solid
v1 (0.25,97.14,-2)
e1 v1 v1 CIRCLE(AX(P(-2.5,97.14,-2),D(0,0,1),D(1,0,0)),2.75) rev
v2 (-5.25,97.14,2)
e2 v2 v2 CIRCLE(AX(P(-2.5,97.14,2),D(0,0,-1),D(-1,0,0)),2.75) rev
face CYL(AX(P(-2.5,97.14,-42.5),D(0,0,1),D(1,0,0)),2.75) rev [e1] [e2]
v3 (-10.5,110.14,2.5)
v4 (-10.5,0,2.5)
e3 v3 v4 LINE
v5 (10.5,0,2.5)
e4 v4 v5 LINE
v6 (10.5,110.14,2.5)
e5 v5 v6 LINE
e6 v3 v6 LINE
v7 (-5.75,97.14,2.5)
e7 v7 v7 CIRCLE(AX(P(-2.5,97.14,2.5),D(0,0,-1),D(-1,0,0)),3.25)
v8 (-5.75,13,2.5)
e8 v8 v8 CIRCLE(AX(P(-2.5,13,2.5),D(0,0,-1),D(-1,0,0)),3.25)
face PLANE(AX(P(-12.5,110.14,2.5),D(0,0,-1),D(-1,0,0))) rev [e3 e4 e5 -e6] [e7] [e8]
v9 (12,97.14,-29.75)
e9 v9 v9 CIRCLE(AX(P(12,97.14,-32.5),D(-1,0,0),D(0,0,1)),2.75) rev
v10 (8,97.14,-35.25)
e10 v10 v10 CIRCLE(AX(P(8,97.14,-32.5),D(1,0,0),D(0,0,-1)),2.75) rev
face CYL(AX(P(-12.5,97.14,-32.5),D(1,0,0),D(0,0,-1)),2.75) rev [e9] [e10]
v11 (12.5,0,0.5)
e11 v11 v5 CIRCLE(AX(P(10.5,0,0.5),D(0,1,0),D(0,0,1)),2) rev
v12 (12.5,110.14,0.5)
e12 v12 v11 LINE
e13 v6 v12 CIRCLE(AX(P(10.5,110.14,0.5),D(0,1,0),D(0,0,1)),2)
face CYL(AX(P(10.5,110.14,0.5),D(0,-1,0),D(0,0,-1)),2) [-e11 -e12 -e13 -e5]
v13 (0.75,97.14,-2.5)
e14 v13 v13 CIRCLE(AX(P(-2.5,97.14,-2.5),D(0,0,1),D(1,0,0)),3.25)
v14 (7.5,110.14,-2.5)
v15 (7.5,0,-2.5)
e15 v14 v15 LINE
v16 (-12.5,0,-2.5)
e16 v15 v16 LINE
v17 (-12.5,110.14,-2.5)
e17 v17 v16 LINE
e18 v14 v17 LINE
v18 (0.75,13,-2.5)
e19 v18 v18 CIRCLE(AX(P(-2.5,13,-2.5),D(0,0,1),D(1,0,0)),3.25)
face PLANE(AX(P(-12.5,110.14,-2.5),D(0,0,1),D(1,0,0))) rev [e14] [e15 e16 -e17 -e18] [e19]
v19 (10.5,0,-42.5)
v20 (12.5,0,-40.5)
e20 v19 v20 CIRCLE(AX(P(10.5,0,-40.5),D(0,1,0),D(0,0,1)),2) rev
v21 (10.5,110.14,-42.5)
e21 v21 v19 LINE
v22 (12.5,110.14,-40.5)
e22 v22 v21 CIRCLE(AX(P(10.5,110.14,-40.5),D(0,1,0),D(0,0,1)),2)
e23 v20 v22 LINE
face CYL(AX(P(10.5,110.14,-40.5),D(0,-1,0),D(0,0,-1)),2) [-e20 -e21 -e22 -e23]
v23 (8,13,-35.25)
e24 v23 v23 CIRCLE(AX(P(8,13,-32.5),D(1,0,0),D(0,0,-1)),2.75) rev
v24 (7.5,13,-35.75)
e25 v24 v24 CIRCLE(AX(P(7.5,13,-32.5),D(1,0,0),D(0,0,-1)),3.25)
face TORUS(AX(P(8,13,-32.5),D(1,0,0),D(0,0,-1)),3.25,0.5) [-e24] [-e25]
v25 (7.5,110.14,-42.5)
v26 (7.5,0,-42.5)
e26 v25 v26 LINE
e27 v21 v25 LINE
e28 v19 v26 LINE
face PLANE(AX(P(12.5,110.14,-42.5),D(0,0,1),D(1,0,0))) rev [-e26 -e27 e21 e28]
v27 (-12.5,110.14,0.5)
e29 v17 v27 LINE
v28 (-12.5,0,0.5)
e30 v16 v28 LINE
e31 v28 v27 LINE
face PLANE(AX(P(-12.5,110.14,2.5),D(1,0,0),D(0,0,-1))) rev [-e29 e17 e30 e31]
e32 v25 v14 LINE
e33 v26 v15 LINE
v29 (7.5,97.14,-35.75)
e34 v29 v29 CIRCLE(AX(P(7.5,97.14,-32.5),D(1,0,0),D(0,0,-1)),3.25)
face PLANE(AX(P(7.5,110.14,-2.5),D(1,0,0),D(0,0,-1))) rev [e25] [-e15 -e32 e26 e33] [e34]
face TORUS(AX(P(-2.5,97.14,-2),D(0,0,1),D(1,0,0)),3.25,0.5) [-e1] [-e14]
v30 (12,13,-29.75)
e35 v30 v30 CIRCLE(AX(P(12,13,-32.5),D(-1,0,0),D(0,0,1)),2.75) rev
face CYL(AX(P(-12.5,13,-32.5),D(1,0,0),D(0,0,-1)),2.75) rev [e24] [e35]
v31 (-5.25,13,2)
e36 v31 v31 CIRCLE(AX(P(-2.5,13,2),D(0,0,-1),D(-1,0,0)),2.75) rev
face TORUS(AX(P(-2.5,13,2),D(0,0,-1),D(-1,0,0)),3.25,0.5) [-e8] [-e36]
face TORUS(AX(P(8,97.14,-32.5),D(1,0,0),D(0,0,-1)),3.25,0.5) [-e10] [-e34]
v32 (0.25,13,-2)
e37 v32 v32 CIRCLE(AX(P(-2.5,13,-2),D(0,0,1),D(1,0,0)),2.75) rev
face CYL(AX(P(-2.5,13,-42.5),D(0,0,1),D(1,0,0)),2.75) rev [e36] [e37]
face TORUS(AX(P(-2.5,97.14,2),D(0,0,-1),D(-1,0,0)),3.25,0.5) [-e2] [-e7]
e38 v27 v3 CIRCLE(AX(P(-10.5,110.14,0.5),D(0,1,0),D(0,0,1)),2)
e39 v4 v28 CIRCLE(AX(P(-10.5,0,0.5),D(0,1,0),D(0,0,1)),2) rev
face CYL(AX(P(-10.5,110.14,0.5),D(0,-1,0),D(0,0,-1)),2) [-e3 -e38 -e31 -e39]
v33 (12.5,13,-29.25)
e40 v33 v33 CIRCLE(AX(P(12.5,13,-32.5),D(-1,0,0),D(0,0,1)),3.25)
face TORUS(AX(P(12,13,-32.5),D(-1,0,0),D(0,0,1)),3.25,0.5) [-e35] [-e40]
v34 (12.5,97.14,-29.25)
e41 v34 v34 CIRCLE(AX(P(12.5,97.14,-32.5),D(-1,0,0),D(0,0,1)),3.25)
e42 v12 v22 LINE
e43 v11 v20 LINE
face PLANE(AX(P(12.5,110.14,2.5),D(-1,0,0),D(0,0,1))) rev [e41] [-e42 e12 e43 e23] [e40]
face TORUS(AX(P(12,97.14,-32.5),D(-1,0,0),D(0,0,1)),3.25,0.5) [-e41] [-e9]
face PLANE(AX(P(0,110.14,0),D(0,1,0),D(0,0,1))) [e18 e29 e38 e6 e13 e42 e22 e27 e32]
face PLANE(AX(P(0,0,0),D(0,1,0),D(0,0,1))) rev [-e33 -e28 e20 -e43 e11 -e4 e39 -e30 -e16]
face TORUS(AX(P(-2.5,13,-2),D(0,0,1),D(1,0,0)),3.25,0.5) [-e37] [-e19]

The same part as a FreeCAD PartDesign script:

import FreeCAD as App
import Part
import Sketcher

V = App.Vector


def edges_at(feature, points):
    """Names of the edges that pass closest to the given points."""
    edges = feature.Shape.Edges
    near = lambda p: min(range(len(edges)), key=lambda i: edges[i].distToShape(Part.Vertex(*p))[0])
    return sorted({f"Edge{near(p) + 1}" for p in points})

doc = App.newDocument("Part")
body = doc.addObject("PartDesign::Body", "Body")

# Sketch on XZ plane
sketch1 = body.newObject("Sketcher::SketchObject", "Sketch")
sketch1.AttachmentSupport = (doc.getObject("XZ_Plane"), [""])
sketch1.MapMode = "FlatFace"
sketch1.addGeometry([
    Part.LineSegment(V(-12, 2, 0), V(12, 2, 0)),  # 0
    Part.LineSegment(V(12, 2, 0), V(12, -42, 0)),  # 1
    Part.LineSegment(V(12, -42, 0), V(8, -42, 0)),  # 2
    Part.LineSegment(V(8, -42, 0), V(8, -2, 0)),  # 3
    Part.LineSegment(V(8, -2, 0), V(-12, -2, 0)),  # 4
    Part.LineSegment(V(-12, -2, 0), V(-12, 2, 0)),  # 5
], False)
sketch1.addConstraint([
    Sketcher.Constraint("Coincident", 0, 2, 1, 1),
    Sketcher.Constraint("Coincident", 1, 2, 2, 1),
    Sketcher.Constraint("Coincident", 2, 2, 3, 1),
    Sketcher.Constraint("Coincident", 3, 2, 4, 1),
    Sketcher.Constraint("Coincident", 4, 2, 5, 1),
    Sketcher.Constraint("Coincident", 5, 2, 0, 1),
    Sketcher.Constraint("Horizontal", 0),
    Sketcher.Constraint("Vertical", 1),
    Sketcher.Constraint("Horizontal", 2),
    Sketcher.Constraint("Vertical", 3),
    Sketcher.Constraint("Horizontal", 4),
    Sketcher.Constraint("Vertical", 5),
    Sketcher.Constraint("Symmetric", 0, 2, 4, 2, -1, 1),
    Sketcher.Constraint("Equal", 2, 5),
    Sketcher.Constraint("DistanceX", 0, 1, 0, 2, 25.0),
    Sketcher.Constraint("DistanceX", 2, 2, 2, 1, 5.0),
    Sketcher.Constraint("DistanceY", 1, 2, 1, 1, 45.0),
])
pad1 = body.newObject("PartDesign::Pad", "Pad")
pad1.Profile = sketch1
pad1.Length = 110.14
pad1.Reversed = True

# Sketch on XY plane
sketch2 = body.newObject("Sketcher::SketchObject", "Sketch001")
sketch2.AttachmentSupport = (doc.getObject("XY_Plane"), [""])
sketch2.MapMode = "FlatFace"
sketch2.AttachmentOffset = App.Placement(V(0, 0, 2.5), App.Rotation())
sketch2.addGeometry([
    Part.Circle(V(-2.5, 97.1, 0), V(0, 0, 1), 2.8),
    Part.Circle(V(-2.5, 13, 0), V(0, 0, 1), 2.8),
], False)
sketch2.addConstraint([
    Sketcher.Constraint("Equal", 0, 1),
    Sketcher.Constraint("Vertical", 0, 3, 1, 3),
    Sketcher.Constraint("Diameter", 0, 5.5),
    Sketcher.Constraint("DistanceY", -1, 1, 1, 3, 13.0),
    Sketcher.Constraint("DistanceX", 0, 3, -1, 1, 2.5),
    Sketcher.Constraint("DistanceY", -1, 1, 0, 3, 97.14),
])
pocket1 = body.newObject("PartDesign::Pocket", "Pocket")
pocket1.Profile = sketch2
pocket1.Type = "ThroughAll"

# Sketch on YZ plane
sketch3 = body.newObject("Sketcher::SketchObject", "Sketch002")
sketch3.AttachmentSupport = (doc.getObject("YZ_Plane"), [""])
sketch3.MapMode = "FlatFace"
sketch3.AttachmentOffset = App.Placement(V(0, 0, 12.5), App.Rotation())
sketch3.addGeometry([
    Part.Circle(V(97.1, -32.5, 0), V(0, 0, 1), 2.8),
    Part.Circle(V(13, -32.5, 0), V(0, 0, 1), 2.8),
], False)
sketch3.addConstraint([
    Sketcher.Constraint("Equal", 0, 1),
    Sketcher.Constraint("Horizontal", 0, 3, 1, 3),
    Sketcher.Constraint("Diameter", 0, 5.5),
    Sketcher.Constraint("DistanceX", -1, 1, 1, 3, 13.0),
    Sketcher.Constraint("DistanceY", 0, 3, -1, 1, 32.5),
    Sketcher.Constraint("DistanceX", -1, 1, 0, 3, 97.14),
])
pocket2 = body.newObject("PartDesign::Pocket", "Pocket001")
pocket2.Profile = sketch3
pocket2.Type = "ThroughAll"
doc.recompute()

fillet = body.newObject("PartDesign::Fillet", "Fillet")
fillet.Base = (pocket2, edges_at(pocket2, [
    (-5.25, 13, -2.5),
    (-5.25, 13, 2.5),
    (-5.25, 97.14, -2.5),
    (-5.25, 97.14, 2.5),
    (7.5, 97.14, -29.75),
    (12.5, 97.14, -29.75),
    (7.5, 13, -29.75),
    (12.5, 13, -29.75),
]))
fillet.Radius = 0.5
doc.recompute()

fillet2 = body.newObject("PartDesign::Fillet", "Fillet001")
fillet2.Base = (fillet, edges_at(fillet, [(12.5, 55.07, 2.5), (-12.5, 55.07, 2.5), (12.5, 55.07, -42.5)]))
fillet2.Radius = 2

doc.recompute()
